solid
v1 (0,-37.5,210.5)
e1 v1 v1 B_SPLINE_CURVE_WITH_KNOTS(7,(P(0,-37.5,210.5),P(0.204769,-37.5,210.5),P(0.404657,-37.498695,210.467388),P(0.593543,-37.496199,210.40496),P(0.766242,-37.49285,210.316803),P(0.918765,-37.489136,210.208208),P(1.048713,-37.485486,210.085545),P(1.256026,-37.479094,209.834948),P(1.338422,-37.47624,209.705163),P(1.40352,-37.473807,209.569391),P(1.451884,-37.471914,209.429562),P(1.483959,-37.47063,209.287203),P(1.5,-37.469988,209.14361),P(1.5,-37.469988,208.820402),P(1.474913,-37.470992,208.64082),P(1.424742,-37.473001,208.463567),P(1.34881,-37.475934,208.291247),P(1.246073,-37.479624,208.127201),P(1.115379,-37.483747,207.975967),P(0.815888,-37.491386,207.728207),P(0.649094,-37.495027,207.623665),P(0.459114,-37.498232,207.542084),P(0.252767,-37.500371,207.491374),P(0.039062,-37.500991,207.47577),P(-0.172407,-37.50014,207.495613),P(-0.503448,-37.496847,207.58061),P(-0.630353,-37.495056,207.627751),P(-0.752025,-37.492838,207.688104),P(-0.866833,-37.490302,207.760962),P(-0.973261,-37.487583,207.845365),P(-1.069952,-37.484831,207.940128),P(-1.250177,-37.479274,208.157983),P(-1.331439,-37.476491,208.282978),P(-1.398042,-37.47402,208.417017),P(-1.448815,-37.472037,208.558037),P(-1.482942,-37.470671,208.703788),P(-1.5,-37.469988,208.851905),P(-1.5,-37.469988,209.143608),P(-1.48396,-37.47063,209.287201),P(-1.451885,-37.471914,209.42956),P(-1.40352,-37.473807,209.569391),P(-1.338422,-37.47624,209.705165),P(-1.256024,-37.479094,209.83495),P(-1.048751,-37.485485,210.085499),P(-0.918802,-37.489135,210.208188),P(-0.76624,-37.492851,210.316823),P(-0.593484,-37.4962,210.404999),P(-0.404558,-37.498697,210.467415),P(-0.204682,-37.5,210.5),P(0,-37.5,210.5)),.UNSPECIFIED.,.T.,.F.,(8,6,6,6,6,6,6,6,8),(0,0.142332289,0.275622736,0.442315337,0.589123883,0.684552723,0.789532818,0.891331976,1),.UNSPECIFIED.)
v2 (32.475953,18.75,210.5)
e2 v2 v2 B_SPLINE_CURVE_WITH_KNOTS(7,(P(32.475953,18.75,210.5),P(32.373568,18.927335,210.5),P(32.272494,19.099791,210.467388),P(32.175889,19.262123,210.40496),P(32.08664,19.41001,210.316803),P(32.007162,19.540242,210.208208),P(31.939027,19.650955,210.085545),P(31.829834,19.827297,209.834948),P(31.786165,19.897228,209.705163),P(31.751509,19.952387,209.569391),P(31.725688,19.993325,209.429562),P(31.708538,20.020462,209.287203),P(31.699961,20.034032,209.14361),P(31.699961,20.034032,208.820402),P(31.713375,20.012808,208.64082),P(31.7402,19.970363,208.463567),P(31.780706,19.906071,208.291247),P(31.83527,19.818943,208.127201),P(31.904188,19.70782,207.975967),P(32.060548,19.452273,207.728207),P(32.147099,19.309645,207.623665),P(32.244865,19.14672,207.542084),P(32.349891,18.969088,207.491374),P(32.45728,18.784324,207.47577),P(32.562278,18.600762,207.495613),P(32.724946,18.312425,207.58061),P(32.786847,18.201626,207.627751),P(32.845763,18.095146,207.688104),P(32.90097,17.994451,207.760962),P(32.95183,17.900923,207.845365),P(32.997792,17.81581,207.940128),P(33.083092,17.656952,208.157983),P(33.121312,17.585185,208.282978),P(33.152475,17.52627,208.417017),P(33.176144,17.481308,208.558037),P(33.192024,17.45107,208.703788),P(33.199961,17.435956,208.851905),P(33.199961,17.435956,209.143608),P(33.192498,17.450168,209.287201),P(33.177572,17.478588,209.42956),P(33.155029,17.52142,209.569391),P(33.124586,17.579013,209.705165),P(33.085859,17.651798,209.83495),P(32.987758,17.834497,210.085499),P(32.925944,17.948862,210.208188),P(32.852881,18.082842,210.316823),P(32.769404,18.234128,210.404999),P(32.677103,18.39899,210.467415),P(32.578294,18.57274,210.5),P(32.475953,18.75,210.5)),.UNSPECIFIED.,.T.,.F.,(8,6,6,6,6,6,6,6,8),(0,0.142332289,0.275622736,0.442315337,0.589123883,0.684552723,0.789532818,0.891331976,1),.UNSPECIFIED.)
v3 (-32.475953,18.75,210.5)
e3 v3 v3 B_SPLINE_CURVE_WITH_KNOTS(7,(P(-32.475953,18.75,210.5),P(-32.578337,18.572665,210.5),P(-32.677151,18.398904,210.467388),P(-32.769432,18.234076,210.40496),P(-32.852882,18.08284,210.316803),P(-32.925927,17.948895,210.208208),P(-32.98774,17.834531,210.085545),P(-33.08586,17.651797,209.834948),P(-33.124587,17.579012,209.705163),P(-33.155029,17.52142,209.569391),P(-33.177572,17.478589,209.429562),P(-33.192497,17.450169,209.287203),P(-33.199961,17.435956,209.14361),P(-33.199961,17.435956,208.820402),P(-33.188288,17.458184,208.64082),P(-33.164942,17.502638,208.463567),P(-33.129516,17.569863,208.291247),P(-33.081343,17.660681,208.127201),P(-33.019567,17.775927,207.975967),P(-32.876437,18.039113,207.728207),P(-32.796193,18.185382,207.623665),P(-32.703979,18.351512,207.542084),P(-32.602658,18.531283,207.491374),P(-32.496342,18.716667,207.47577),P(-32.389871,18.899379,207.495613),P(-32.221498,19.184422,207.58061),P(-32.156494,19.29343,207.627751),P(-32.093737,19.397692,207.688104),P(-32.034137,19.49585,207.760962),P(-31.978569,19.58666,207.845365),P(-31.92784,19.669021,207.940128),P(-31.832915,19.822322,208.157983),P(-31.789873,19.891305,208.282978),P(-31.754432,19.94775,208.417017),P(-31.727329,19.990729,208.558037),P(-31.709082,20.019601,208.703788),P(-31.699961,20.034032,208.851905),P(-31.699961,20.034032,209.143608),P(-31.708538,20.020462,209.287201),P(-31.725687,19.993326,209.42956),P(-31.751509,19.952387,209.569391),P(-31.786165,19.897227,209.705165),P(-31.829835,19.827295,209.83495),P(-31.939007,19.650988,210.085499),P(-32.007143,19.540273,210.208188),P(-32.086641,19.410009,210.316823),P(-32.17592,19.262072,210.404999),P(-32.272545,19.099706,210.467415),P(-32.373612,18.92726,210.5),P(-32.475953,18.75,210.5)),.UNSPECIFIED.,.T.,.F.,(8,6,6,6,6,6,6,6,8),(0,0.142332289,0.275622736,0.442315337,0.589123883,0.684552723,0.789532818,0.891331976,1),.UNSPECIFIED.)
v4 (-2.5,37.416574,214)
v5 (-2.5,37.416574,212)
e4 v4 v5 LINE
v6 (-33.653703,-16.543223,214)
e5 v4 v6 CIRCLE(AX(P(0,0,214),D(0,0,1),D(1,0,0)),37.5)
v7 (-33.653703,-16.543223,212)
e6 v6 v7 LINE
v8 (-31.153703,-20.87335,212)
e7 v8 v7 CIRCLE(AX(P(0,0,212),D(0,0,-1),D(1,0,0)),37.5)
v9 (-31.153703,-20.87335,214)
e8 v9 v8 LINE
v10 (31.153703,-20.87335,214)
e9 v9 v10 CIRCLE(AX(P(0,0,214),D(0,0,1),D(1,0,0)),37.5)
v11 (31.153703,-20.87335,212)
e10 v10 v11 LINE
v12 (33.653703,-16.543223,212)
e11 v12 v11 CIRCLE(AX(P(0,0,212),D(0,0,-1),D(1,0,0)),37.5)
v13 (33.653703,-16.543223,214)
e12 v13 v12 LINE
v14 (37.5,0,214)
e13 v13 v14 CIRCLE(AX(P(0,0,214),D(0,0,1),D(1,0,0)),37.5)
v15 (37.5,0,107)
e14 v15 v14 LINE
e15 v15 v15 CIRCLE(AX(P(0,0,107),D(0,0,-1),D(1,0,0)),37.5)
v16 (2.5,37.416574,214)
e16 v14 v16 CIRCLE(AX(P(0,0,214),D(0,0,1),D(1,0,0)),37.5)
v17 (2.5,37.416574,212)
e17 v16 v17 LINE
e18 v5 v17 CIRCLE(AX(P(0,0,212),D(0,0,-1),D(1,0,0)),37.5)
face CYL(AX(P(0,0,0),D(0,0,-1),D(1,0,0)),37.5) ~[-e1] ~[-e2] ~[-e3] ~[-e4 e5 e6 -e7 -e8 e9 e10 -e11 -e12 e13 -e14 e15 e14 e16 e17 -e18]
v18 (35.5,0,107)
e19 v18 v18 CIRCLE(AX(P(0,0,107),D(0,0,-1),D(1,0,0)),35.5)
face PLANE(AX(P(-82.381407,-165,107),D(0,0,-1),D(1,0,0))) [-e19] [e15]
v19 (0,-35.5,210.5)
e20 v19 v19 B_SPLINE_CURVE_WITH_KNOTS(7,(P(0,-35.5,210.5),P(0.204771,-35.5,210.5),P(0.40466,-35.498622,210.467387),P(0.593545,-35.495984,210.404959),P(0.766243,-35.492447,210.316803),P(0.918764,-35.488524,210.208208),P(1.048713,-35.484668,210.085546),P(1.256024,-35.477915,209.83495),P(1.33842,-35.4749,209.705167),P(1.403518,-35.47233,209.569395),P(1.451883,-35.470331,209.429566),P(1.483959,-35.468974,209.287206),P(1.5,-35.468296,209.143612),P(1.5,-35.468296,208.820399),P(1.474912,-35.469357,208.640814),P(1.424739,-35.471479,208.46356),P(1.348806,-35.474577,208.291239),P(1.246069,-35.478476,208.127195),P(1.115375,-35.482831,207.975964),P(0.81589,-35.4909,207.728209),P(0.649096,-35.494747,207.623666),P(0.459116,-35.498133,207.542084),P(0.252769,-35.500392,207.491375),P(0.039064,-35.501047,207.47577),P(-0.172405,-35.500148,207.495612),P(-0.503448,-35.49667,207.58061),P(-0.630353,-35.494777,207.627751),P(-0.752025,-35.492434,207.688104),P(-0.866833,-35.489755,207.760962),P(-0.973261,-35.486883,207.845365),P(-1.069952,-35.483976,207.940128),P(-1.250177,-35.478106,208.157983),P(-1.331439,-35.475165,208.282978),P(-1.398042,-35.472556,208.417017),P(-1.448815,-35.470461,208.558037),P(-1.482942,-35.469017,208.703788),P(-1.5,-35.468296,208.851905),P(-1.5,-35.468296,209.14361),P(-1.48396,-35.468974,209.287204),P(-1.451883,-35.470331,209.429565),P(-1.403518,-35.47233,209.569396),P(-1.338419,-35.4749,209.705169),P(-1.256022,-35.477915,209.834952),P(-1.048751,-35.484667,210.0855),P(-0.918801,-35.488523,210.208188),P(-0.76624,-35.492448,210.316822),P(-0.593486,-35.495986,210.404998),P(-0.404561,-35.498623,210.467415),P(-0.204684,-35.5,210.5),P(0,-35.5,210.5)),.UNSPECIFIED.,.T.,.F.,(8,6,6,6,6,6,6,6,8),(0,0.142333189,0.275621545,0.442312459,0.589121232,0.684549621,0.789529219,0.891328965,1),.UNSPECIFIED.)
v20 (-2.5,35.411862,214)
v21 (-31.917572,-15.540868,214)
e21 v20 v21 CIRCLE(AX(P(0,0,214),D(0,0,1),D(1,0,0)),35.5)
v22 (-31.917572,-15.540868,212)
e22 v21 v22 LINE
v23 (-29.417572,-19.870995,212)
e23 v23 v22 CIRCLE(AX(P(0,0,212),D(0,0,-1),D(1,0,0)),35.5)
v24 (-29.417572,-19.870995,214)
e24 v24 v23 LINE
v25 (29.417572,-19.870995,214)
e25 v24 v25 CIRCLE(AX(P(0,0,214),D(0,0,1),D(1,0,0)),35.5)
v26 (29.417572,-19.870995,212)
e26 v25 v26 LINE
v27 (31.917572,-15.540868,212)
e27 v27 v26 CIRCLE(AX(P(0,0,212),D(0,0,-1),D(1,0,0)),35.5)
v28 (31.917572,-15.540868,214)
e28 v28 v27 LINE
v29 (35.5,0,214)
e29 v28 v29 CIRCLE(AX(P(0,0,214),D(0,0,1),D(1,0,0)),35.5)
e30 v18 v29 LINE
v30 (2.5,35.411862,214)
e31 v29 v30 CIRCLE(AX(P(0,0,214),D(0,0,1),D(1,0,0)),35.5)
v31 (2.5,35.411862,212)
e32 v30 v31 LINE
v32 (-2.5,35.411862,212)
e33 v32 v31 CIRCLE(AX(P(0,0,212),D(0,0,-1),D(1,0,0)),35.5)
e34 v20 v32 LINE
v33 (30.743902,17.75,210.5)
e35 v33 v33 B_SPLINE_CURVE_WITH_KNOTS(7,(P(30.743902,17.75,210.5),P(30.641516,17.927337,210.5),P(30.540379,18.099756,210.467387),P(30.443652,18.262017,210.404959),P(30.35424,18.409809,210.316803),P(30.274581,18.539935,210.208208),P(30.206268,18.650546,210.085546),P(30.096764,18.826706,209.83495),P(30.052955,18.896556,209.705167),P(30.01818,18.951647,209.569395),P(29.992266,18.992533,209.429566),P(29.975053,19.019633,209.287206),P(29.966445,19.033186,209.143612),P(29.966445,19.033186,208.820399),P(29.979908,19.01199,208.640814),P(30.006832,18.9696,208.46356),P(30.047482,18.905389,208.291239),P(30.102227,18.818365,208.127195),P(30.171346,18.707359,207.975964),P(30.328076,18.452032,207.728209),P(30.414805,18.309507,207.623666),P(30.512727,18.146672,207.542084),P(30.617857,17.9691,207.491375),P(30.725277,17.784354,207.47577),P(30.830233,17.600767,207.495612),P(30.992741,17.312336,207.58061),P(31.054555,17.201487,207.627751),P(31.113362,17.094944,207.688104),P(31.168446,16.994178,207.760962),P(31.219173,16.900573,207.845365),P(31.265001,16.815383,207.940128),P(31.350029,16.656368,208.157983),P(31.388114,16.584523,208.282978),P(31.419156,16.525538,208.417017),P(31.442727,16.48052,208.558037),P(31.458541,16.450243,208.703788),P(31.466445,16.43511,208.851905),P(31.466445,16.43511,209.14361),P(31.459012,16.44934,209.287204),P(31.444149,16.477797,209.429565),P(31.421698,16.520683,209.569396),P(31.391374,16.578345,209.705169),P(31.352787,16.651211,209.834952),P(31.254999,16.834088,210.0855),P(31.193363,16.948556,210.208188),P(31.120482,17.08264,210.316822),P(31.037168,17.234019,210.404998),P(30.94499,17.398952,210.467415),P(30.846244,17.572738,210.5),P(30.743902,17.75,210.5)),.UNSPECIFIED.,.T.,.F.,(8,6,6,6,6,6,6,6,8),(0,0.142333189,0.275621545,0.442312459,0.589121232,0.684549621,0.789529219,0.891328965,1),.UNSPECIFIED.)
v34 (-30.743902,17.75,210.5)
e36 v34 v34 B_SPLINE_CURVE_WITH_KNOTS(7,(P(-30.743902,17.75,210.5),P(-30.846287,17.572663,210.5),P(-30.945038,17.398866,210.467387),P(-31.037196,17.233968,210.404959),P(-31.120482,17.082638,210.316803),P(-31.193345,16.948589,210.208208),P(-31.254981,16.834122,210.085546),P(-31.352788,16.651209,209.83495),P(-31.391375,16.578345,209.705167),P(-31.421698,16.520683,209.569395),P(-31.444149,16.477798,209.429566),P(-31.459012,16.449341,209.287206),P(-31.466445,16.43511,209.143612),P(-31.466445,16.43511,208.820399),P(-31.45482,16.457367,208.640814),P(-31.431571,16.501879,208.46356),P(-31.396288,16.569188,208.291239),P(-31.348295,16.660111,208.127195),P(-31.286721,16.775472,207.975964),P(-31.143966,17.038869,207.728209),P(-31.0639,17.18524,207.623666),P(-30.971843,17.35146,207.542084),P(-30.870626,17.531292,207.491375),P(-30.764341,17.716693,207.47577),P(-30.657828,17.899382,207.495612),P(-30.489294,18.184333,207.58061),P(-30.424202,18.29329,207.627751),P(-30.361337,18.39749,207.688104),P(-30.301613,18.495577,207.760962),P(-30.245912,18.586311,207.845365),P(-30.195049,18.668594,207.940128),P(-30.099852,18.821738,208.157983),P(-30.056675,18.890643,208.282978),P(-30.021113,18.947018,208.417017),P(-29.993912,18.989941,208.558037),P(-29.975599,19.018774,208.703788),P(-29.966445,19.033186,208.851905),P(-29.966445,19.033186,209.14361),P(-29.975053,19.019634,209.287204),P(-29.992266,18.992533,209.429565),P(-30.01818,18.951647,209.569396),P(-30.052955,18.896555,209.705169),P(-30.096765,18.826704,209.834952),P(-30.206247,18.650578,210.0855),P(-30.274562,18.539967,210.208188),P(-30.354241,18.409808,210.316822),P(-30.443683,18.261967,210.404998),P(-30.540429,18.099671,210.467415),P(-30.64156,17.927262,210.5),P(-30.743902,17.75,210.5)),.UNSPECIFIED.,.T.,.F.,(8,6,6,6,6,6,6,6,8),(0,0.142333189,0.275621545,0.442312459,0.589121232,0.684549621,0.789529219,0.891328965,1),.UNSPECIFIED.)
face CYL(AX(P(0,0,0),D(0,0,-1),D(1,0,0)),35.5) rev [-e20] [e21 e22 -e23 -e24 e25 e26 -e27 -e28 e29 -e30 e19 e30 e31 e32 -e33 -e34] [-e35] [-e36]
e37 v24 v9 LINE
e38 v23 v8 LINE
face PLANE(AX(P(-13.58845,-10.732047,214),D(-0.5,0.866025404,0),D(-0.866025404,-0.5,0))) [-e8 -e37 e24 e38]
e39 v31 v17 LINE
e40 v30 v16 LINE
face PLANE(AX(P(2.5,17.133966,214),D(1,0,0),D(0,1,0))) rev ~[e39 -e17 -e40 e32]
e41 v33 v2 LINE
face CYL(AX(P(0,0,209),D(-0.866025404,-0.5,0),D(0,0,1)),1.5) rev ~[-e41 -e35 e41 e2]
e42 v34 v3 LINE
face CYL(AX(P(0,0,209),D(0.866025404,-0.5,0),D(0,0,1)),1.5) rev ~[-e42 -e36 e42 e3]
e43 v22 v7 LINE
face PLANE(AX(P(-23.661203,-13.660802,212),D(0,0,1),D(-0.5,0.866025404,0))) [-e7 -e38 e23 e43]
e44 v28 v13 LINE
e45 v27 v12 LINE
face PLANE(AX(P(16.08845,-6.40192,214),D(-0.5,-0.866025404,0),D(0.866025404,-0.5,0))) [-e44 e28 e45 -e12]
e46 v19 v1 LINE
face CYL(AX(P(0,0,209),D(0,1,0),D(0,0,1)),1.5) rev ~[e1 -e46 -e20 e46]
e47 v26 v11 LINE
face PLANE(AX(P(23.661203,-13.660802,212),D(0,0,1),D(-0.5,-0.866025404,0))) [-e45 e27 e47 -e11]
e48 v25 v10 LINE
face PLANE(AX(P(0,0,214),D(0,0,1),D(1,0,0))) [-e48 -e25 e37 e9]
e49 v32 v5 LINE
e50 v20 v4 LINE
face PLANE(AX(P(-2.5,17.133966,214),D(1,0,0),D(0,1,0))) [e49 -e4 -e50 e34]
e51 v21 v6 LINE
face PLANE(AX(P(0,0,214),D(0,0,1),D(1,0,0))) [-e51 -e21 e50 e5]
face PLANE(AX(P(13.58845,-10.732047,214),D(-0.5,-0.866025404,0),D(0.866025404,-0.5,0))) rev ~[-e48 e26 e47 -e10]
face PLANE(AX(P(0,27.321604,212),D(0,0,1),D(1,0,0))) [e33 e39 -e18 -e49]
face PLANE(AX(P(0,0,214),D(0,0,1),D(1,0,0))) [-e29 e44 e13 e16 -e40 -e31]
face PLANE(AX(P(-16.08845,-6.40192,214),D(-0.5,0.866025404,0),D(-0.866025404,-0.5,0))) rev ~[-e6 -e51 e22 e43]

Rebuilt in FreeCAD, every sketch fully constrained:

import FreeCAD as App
import Part
import Sketcher

doc = App.newDocument("Part")
body = doc.addObject("PartDesign::Body", "Body")

# Sketch on XY plane
sketch1 = doc.addObject("Sketcher::SketchObject", "Sketch")
body.addObject(sketch1)
sketch1.AttachmentSupport = (doc.XY_Plane, [""])
sketch1.MapMode = "FlatFace"
sketch1.addGeometry(Part.Circle(App.Vector(0, 0, 0), App.Vector(0, 0, 1), 37.5), False)
sketch1.addGeometry(Part.Circle(App.Vector(0, 0, 0), App.Vector(0, 0, 1), 35.5), False)
sketch1.addConstraint(Sketcher.Constraint("Coincident", 0, 3, -1, 1))
sketch1.addConstraint(Sketcher.Constraint("Coincident", 1, 3, -1, 1))
sketch1.addConstraint(Sketcher.Constraint("Diameter", 0, 75.0))
sketch1.addConstraint(Sketcher.Constraint("Diameter", 1, 71.0))
pad1 = doc.addObject("PartDesign::Pad", "Pad")
body.addObject(pad1)
pad1.Profile = sketch1
pad1.Length = 214

# Sketch on XZ plane
sketch2 = doc.addObject("Sketcher::SketchObject", "Sketch001")
body.addObject(sketch2)
sketch2.AttachmentSupport = (doc.XZ_Plane, [""])
sketch2.MapMode = "FlatFace"
sketch2.addGeometry(Part.Circle(App.Vector(0, 5, 0), App.Vector(0, 0, 1), 1.5), False)
sketch2.addGeometry(Part.Circle(App.Vector(0, 209, 0), App.Vector(0, 0, 1), 1.5), False)
sketch2.addConstraint(Sketcher.Constraint("Equal", 0, 1))
sketch2.addConstraint(Sketcher.Constraint("PointOnObject", 0, 3, -2))
sketch2.addConstraint(Sketcher.Constraint("PointOnObject", 1, 3, -2))
sketch2.addConstraint(Sketcher.Constraint("Diameter", 0, 3.0))
sketch2.addConstraint(Sketcher.Constraint("DistanceY", -1, 1, 0, 3, 5.0))
sketch2.addConstraint(Sketcher.Constraint("DistanceY", -1, 1, 1, 3, 209.0))
pocket1 = doc.addObject("PartDesign::Pocket", "Pocket")
body.addObject(pocket1)
pocket1.Profile = sketch2
pocket1.Length = 88
pocket1.Reversed = True
doc.recompute()

polarpattern = doc.addObject("PartDesign::PolarPattern", "PolarPattern")
body.addObject(polarpattern)
polarpattern.Originals = [pocket1]
polarpattern.Axis = (doc.Z_Axis, [""])
polarpattern.Angle = 360
polarpattern.Occurrences = 3
body.Tip = polarpattern

# Sketch on XY plane
sketch3 = doc.addObject("Sketcher::SketchObject", "Sketch002")
body.addObject(sketch3)
sketch3.AttachmentSupport = (doc.XY_Plane, [""])
sketch3.MapMode = "FlatFace"
sketch3.addGeometry(Part.LineSegment(App.Vector(2.5, 37.509241, 0), App.Vector(2.5, 17.133966, 0)), False)
sketch3.addGeometry(Part.LineSegment(App.Vector(2.5, 17.133966, 0), App.Vector(-2.5, 17.133966, 0)), False)
sketch3.addGeometry(Part.LineSegment(App.Vector(-2.5, 17.133966, 0), App.Vector(-2.5, 37.509241, 0)), False)
sketch3.addGeometry(Part.LineSegment(App.Vector(-2.5, 37.509241, 0), App.Vector(2.5, 37.509241, 0)), False)
sketch3.addConstraint(Sketcher.Constraint("Coincident", 0, 2, 1, 1))
sketch3.addConstraint(Sketcher.Constraint("Coincident", 1, 2, 2, 1))
sketch3.addConstraint(Sketcher.Constraint("Coincident", 2, 2, 3, 1))
sketch3.addConstraint(Sketcher.Constraint("Coincident", 3, 2, 0, 1))
sketch3.addConstraint(Sketcher.Constraint("Vertical", 0))
sketch3.addConstraint(Sketcher.Constraint("Horizontal", 1))
sketch3.addConstraint(Sketcher.Constraint("Vertical", 2))
sketch3.addConstraint(Sketcher.Constraint("Horizontal", 3))
sketch3.addConstraint(Sketcher.Constraint("DistanceX", 1, 2, 1, 1, 5.0))
sketch3.addConstraint(Sketcher.Constraint("DistanceX", -1, 1, 0, 2, 2.5))
sketch3.addConstraint(Sketcher.Constraint("DistanceY", 0, 2, 0, 1, 20.375275))
sketch3.addConstraint(Sketcher.Constraint("DistanceY", -1, 1, 2, 2, 37.509241))
pocket2 = doc.addObject("PartDesign::Pocket", "Pocket001")
body.addObject(pocket2)
pocket2.Profile = sketch3
pocket2.Length = 2
pocket2.Reversed = True
doc.recompute()

polarpattern2 = doc.addObject("PartDesign::PolarPattern", "PolarPattern001")
body.addObject(polarpattern2)
polarpattern2.Originals = [pocket2]
polarpattern2.Axis = (doc.Z_Axis, [""])
polarpattern2.Angle = 360
polarpattern2.Occurrences = 3
body.Tip = polarpattern2

# Sketch on XY plane
sketch4 = doc.addObject("Sketcher::SketchObject", "Sketch003")
body.addObject(sketch4)
sketch4.AttachmentSupport = (doc.XY_Plane, [""])
sketch4.MapMode = "FlatFace"
sketch4.AttachmentOffset = App.Placement(App.Vector(0, 0, 214), App.Rotation())
sketch4.addGeometry(Part.LineSegment(App.Vector(-2.5, 37.509241, 0), App.Vector(-2.5, 17.133966, 0)), False)
sketch4.addGeometry(Part.LineSegment(App.Vector(-2.5, 17.133966, 0), App.Vector(2.5, 17.133966, 0)), False)
sketch4.addGeometry(Part.LineSegment(App.Vector(2.5, 17.133966, 0), App.Vector(2.5, 37.509241, 0)), False)
sketch4.addGeometry(Part.LineSegment(App.Vector(2.5, 37.509241, 0), App.Vector(-2.5, 37.509241, 0)), False)
sketch4.addConstraint(Sketcher.Constraint("Coincident", 0, 2, 1, 1))
sketch4.addConstraint(Sketcher.Constraint("Coincident", 1, 2, 2, 1))
sketch4.addConstraint(Sketcher.Constraint("Coincident", 2, 2, 3, 1))
sketch4.addConstraint(Sketcher.Constraint("Coincident", 3, 2, 0, 1))
sketch4.addConstraint(Sketcher.Constraint("Vertical", 0))
sketch4.addConstraint(Sketcher.Constraint("Horizontal", 1))
sketch4.addConstraint(Sketcher.Constraint("Vertical", 2))
sketch4.addConstraint(Sketcher.Constraint("Horizontal", 3))
sketch4.addConstraint(Sketcher.Constraint("DistanceX", 1, 1, 1, 2, 5.0))
sketch4.addConstraint(Sketcher.Constraint("DistanceX", 0, 2, -1, 1, 2.5))
sketch4.addConstraint(Sketcher.Constraint("DistanceY", 0, 2, 0, 1, 20.375275))
sketch4.addConstraint(Sketcher.Constraint("DistanceY", -1, 1, 2, 2, 37.509241))
pocket3 = doc.addObject("PartDesign::Pocket", "Pocket002")
body.addObject(pocket3)
pocket3.Profile = sketch4
pocket3.Length = 2
doc.recompute()

polarpattern3 = doc.addObject("PartDesign::PolarPattern", "PolarPattern002")
body.addObject(polarpattern3)
polarpattern3.Originals = [pocket3]
polarpattern3.Axis = (doc.Z_Axis, [""])
polarpattern3.Angle = 360
polarpattern3.Occurrences = 3
body.Tip = polarpattern3

# Sketch on XZ plane
sketch5 = doc.addObject("Sketcher::SketchObject", "Sketch004")
body.addObject(sketch5)
sketch5.AttachmentSupport = (doc.XZ_Plane, [""])
sketch5.MapMode = "FlatFace"
sketch5.addGeometry(Part.LineSegment(App.Vector(-82.381407, -107, 0), App.Vector(-82.381407, 107, 0)), False)
sketch5.addGeometry(Part.LineSegment(App.Vector(-82.381407, 107, 0), App.Vector(82.381407, 107, 0)), False)
sketch5.addGeometry(Part.LineSegment(App.Vector(82.381407, 107, 0), App.Vector(82.381407, -107, 0)), False)
sketch5.addGeometry(Part.LineSegment(App.Vector(82.381407, -107, 0), App.Vector(-82.381407, -107, 0)), False)
sketch5.addConstraint(Sketcher.Constraint("Coincident", 0, 2, 1, 1))
sketch5.addConstraint(Sketcher.Constraint("Coincident", 1, 2, 2, 1))
sketch5.addConstraint(Sketcher.Constraint("Coincident", 2, 2, 3, 1))
sketch5.addConstraint(Sketcher.Constraint("Coincident", 3, 2, 0, 1))
sketch5.addConstraint(Sketcher.Constraint("Vertical", 0))
sketch5.addConstraint(Sketcher.Constraint("Horizontal", 1))
sketch5.addConstraint(Sketcher.Constraint("Vertical", 2))
sketch5.addConstraint(Sketcher.Constraint("Horizontal", 3))
sketch5.addConstraint(Sketcher.Constraint("Symmetric", 0, 2, 2, 2, -1, 1))
sketch5.addConstraint(Sketcher.Constraint("DistanceY", 0, 1, 0, 2, 214.0))
sketch5.addConstraint(Sketcher.Constraint("DistanceX", 1, 1, 1, 2, 164.762814))
pocket4 = doc.addObject("PartDesign::Pocket", "Pocket003")
body.addObject(pocket4)
pocket4.Profile = sketch5
pocket4.Type = "ThroughAll"
pocket4.Midplane = True

doc.recompute()
